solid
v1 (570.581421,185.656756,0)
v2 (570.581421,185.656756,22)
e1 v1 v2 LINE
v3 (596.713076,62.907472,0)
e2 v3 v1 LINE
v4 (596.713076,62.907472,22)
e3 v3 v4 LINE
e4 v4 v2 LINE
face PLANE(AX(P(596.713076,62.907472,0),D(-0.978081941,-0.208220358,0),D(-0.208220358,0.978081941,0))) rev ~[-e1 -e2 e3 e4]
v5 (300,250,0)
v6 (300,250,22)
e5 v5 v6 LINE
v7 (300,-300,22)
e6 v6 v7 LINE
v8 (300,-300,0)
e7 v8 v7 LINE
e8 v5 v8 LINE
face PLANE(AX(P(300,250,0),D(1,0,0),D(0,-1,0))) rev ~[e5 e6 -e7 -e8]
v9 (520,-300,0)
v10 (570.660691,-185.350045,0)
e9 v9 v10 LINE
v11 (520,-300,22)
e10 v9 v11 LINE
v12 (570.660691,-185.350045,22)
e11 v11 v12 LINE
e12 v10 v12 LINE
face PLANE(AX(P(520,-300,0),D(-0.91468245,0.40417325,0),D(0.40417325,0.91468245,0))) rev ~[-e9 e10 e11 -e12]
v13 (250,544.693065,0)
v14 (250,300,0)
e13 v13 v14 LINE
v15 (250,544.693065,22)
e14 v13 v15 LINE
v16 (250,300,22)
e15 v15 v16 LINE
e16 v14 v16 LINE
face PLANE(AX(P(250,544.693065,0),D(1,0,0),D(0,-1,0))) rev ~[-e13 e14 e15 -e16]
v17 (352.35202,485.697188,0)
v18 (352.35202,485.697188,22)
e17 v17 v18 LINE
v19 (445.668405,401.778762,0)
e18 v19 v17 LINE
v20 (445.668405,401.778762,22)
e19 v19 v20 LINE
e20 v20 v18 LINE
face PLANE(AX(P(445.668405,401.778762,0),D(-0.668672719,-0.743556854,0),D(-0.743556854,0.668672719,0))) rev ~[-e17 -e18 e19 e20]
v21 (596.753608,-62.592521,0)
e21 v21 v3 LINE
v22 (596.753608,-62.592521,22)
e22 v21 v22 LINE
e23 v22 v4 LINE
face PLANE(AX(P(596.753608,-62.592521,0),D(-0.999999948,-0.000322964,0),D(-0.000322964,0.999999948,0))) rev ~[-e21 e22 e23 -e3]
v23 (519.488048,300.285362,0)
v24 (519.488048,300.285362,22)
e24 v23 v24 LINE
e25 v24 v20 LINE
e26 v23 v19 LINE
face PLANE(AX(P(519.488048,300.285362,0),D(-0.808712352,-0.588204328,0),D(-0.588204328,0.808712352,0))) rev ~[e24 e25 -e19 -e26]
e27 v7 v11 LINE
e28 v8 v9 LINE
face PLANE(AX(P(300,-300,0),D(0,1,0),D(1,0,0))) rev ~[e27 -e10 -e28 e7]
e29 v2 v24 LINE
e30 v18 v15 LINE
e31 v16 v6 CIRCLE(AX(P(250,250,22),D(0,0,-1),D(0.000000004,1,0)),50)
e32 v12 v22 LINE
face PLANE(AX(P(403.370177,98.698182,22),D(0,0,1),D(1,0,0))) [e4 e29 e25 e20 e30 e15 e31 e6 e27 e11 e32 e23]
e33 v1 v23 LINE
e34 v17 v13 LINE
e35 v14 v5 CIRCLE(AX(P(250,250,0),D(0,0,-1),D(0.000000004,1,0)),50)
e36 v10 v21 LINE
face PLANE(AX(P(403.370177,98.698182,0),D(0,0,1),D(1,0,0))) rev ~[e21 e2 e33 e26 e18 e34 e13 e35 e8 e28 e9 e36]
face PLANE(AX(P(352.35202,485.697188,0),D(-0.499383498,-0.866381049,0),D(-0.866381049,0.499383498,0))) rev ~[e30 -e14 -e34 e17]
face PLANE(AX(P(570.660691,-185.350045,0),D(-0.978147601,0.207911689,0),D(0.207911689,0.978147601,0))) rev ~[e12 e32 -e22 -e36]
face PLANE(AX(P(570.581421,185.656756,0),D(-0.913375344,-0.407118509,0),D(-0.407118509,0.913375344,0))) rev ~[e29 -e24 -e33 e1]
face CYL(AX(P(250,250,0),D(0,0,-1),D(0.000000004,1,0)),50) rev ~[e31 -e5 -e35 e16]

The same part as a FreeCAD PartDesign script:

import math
import FreeCAD as App
import Part
import Sketcher

V = App.Vector
Q = App.Units.Quantity

doc = App.newDocument("Part")
params = doc.addObject("Spreadsheet::Sheet", "Params")
for row, (alias, value) in enumerate([
    ("sketch1_radius", "50 mm"),
    ("sketch1_width", "220 mm"),
    ("sketch1_height", "550 mm"),
    ("sketch1_length", "125.5 mm"),
    ("pad1_length", "22 mm"),
], start=1):
    params.set(f"A{row}", alias)
    params.set(f"B{row}", "=" + value)
    params.setAlias(f"B{row}", alias)

body = doc.addObject("PartDesign::Body", "Body")

sketch1 = doc.addObject("Sketcher::SketchObject", "Sketch")
body.addObject(sketch1)
sketch1.AttachmentSupport = (doc.XY_Plane, [""])
sketch1.MapMode = "FlatFace"
sketch1.addGeometry([
    Part.LineSegment(V(300, 250, 0), V(300, -300, 0)),
    Part.LineSegment(V(300, -300, 0), V(520, -300, 0)),
    Part.LineSegment(V(520, -300, 0), V(571, -185, 0)),
    Part.LineSegment(V(571, -185, 0), V(597, -63, 0)),
    Part.LineSegment(V(597, -63, 0), V(597, 63, 0)),
    Part.LineSegment(V(597, 63, 0), V(571, 186, 0)),
    Part.LineSegment(V(571, 186, 0), V(519, 300, 0)),
    Part.LineSegment(V(519, 300, 0), V(446, 402, 0)),
    Part.LineSegment(V(446, 402, 0), V(352, 486, 0)),
    Part.LineSegment(V(352, 486, 0), V(250, 545, 0)),
    Part.LineSegment(V(250, 545, 0), V(250, 300, 0)),
    Part.ArcOfCircle(Part.Circle(V(250, 250, 0), V(0, 0, 1), 50), math.radians(0), math.radians(90)),
], False)
sketch1.addConstraint([
    Sketcher.Constraint("Coincident", 0, 2, 1, 1),
    Sketcher.Constraint("Coincident", 1, 2, 2, 1),
    Sketcher.Constraint("Coincident", 2, 2, 3, 1),
    Sketcher.Constraint("Coincident", 3, 2, 4, 1),
    Sketcher.Constraint("Coincident", 4, 2, 5, 1),
    Sketcher.Constraint("Coincident", 5, 2, 6, 1),
    Sketcher.Constraint("Coincident", 6, 2, 7, 1),
    Sketcher.Constraint("Coincident", 7, 2, 8, 1),
    Sketcher.Constraint("Coincident", 8, 2, 9, 1),
    Sketcher.Constraint("Coincident", 9, 2, 10, 1),
    Sketcher.Constraint("Coincident", 10, 2, 11, 2),
    Sketcher.Constraint("Tangent", 11, 1, 0, 1),
    Sketcher.Constraint("Vertical", 0),
    Sketcher.Constraint("Horizontal", 1),
    Sketcher.Constraint("Vertical", 10),
    Sketcher.Constraint("Vertical", 11, 3, 9, 2),
    Sketcher.Constraint("Equal", 3, 4),
    Sketcher.Constraint("Equal", 4, 5),
    Sketcher.Constraint("Equal", 5, 6),
    Sketcher.Constraint("Equal", 6, 7),
    Sketcher.Constraint("Equal", 7, 8),
    Sketcher.Constraint("Radius", 11, Q("50 mm")),
    Sketcher.Constraint("DistanceX", 1, 1, 1, 2, Q("220 mm")),
    Sketcher.Constraint("DistanceY", 0, 2, 0, 1, Q("550 mm")),
    Sketcher.Constraint("Angle", 3, Q("78 deg")),
    Sketcher.Constraint("DistanceX", -1, 1, 11, 3, Q("250 mm")),
    Sketcher.Constraint("DistanceY", -1, 1, 11, 3, Q("250 mm")),
    Sketcher.Constraint("Distance", 3, Q("125.5 mm")),
    Sketcher.Constraint("DistanceY", 2, 2, 5, 2, Q("371.006801 mm")),
    Sketcher.Constraint("DistanceY", 6, 2, 7, 2, Q("101.4934 mm")),
    Sketcher.Constraint("DistanceX", 8, 2, 5, 2, Q("218.229401 mm")),
    Sketcher.Constraint("DistanceY", 10, 2, 10, 1, Q("244.693065 mm")),
    Sketcher.Constraint("DistanceX", -1, 1, 2, 2, Q("570.660691 mm")),
    Sketcher.Constraint("DistanceY", 3, 2, -1, 1, Q("62.592521 mm")),
    Sketcher.Constraint("DistanceX", -1, 1, 5, 2, Q("570.581421 mm")),
    Sketcher.Constraint("DistanceX", -1, 1, 6, 2, Q("519.488048 mm")),
])
sketch1.setExpression("Constraints[21]", "Params.sketch1_radius")
sketch1.setExpression("Constraints[22]", "Params.sketch1_width")
sketch1.setExpression("Constraints[23]", "Params.sketch1_height")
sketch1.setExpression("Constraints[27]", "Params.sketch1_length")
pad1 = doc.addObject("PartDesign::Pad", "Pad")
body.addObject(pad1)
pad1.Profile = sketch1
pad1.setExpression("Length", "Params.pad1_length")

doc.recompute()
